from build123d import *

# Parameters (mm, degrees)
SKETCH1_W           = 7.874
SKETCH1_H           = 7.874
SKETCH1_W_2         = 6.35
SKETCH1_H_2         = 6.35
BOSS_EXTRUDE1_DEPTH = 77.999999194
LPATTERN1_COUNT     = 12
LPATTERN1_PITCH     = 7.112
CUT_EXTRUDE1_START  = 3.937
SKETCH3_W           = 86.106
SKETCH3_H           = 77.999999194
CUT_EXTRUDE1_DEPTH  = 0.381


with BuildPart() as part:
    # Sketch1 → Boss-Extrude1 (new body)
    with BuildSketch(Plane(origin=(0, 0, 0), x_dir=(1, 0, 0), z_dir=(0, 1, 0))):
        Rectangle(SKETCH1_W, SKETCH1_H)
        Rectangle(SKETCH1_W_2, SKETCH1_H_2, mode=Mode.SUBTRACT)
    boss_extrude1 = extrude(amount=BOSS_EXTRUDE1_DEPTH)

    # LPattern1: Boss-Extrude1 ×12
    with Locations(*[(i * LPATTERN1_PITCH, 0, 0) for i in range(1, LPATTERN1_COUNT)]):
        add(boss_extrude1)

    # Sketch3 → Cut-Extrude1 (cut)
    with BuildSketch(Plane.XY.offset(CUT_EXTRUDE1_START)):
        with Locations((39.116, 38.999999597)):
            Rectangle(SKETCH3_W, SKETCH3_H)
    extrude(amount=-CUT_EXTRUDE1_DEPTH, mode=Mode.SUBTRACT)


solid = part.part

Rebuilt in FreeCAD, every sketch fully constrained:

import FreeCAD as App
import Part
import Sketcher
from FreeCAD import Vector
Q = App.Units.Quantity

doc = App.newDocument("Part")
body = doc.addObject("PartDesign::Body", "Body")

# Sketch on XZ plane
sketch1 = body.newObject("Sketcher::SketchObject", "Sketch")
sketch1.AttachmentSupport = (doc.getObject("XZ_Plane"), [""])
sketch1.MapMode = "FlatFace"
sketch1.addGeometry(Part.LineSegment(Vector(-4, -4, 0), Vector(-4, 4, 0)), False)
sketch1.addGeometry(Part.LineSegment(Vector(-4, 4, 0), Vector(4, 4, 0)), False)
sketch1.addGeometry(Part.LineSegment(Vector(4, 4, 0), Vector(4, -4, 0)), False)
sketch1.addGeometry(Part.LineSegment(Vector(4, -4, 0), Vector(-4, -4, 0)), False)
sketch1.addGeometry(Part.LineSegment(Vector(3, 3, 0), Vector(-3, 3, 0)), False)
sketch1.addGeometry(Part.LineSegment(Vector(-3, 3, 0), Vector(-3, -3, 0)), False)
sketch1.addGeometry(Part.LineSegment(Vector(-3, -3, 0), Vector(3, -3, 0)), False)
sketch1.addGeometry(Part.LineSegment(Vector(3, -3, 0), Vector(3, 3, 0)), False)
sketch1.addConstraint(Sketcher.Constraint("Coincident", 0, 2, 1, 1))
sketch1.addConstraint(Sketcher.Constraint("Coincident", 1, 2, 2, 1))
sketch1.addConstraint(Sketcher.Constraint("Coincident", 2, 2, 3, 1))
sketch1.addConstraint(Sketcher.Constraint("Coincident", 3, 2, 0, 1))
sketch1.addConstraint(Sketcher.Constraint("Coincident", 4, 2, 5, 1))
sketch1.addConstraint(Sketcher.Constraint("Coincident", 5, 2, 6, 1))
sketch1.addConstraint(Sketcher.Constraint("Coincident", 6, 2, 7, 1))
sketch1.addConstraint(Sketcher.Constraint("Coincident", 7, 2, 4, 1))
sketch1.addConstraint(Sketcher.Constraint("Vertical", 0))
sketch1.addConstraint(Sketcher.Constraint("Horizontal", 1))
sketch1.addConstraint(Sketcher.Constraint("Vertical", 2))
sketch1.addConstraint(Sketcher.Constraint("Horizontal", 3))
sketch1.addConstraint(Sketcher.Constraint("Horizontal", 4))
sketch1.addConstraint(Sketcher.Constraint("Vertical", 5))
sketch1.addConstraint(Sketcher.Constraint("Horizontal", 6))
sketch1.addConstraint(Sketcher.Constraint("Vertical", 7))
sketch1.addConstraint(Sketcher.Constraint("Symmetric", 0, 2, 2, 2, -1, 1))
sketch1.addConstraint(Sketcher.Constraint("Symmetric", 4, 2, 6, 2, -1, 1))
sketch1.addConstraint(Sketcher.Constraint("Equal", 3, 0))
sketch1.addConstraint(Sketcher.Constraint("Equal", 6, 5))
sketch1.addConstraint(Sketcher.Constraint("DistanceX", 1, 1, 1, 2, Q("0.31 in")))
sketch1.addConstraint(Sketcher.Constraint("DistanceX", 4, 2, 4, 1, Q("0.25 in")))
pad1 = body.newObject("PartDesign::Pad", "Pad")
pad1.Profile = sketch1
pad1.Length = 77.999999
pad1.Reversed = True
doc.recompute()

linearpattern = body.newObject("PartDesign::LinearPattern", "LinearPattern")
linearpattern.Originals = [pad1]
linearpattern.Direction = (doc.getObject("X_Axis"), [""])
linearpattern.Mode = "offset"
linearpattern.Offset = Q("0.28 in")
linearpattern.Occurrences = 12
body.Tip = linearpattern

# Sketch on XY plane
sketch2 = body.newObject("Sketcher::SketchObject", "Sketch001")
sketch2.AttachmentSupport = (doc.getObject("XY_Plane"), [""])
sketch2.MapMode = "FlatFace"
sketch2.AttachmentOffset = App.Placement(Vector(0, 0, 0.155 * 25.4), App.Rotation())
sketch2.addGeometry(Part.LineSegment(Vector(-4, 78, 0), Vector(-4, 0, 0)), False)
sketch2.addGeometry(Part.LineSegment(Vector(-4, 0, 0), Vector(82, 0, 0)), False)
sketch2.addGeometry(Part.LineSegment(Vector(82, 0, 0), Vector(82, 78, 0)), False)
sketch2.addGeometry(Part.LineSegment(Vector(82, 78, 0), Vector(-4, 78, 0)), False)
sketch2.addConstraint(Sketcher.Constraint("Coincident", 0, 2, 1, 1))
sketch2.addConstraint(Sketcher.Constraint("Coincident", 1, 2, 2, 1))
sketch2.addConstraint(Sketcher.Constraint("Coincident", 2, 2, 3, 1))
sketch2.addConstraint(Sketcher.Constraint("Coincident", 3, 2, 0, 1))
sketch2.addConstraint(Sketcher.Constraint("Vertical", 0))
sketch2.addConstraint(Sketcher.Constraint("Horizontal", 1))
sketch2.addConstraint(Sketcher.Constraint("Vertical", 2))
sketch2.addConstraint(Sketcher.Constraint("Horizontal", 3))
sketch2.addConstraint(Sketcher.Constraint("PointOnObject", 0, 2, -1))
sketch2.addConstraint(Sketcher.Constraint("DistanceX", 1, 1, 1, 2, Q("3.39 in")))
sketch2.addConstraint(Sketcher.Constraint("DistanceX", 0, 2, -1, 1, Q("0.155 in")))
sketch2.addConstraint(Sketcher.Constraint("DistanceY", 0, 2, 0, 1, 77.999999))
pocket1 = body.newObject("PartDesign::Pocket", "Pocket")
pocket1.Profile = sketch2
pocket1.Length = Q("0.015 in")

doc.recompute()
